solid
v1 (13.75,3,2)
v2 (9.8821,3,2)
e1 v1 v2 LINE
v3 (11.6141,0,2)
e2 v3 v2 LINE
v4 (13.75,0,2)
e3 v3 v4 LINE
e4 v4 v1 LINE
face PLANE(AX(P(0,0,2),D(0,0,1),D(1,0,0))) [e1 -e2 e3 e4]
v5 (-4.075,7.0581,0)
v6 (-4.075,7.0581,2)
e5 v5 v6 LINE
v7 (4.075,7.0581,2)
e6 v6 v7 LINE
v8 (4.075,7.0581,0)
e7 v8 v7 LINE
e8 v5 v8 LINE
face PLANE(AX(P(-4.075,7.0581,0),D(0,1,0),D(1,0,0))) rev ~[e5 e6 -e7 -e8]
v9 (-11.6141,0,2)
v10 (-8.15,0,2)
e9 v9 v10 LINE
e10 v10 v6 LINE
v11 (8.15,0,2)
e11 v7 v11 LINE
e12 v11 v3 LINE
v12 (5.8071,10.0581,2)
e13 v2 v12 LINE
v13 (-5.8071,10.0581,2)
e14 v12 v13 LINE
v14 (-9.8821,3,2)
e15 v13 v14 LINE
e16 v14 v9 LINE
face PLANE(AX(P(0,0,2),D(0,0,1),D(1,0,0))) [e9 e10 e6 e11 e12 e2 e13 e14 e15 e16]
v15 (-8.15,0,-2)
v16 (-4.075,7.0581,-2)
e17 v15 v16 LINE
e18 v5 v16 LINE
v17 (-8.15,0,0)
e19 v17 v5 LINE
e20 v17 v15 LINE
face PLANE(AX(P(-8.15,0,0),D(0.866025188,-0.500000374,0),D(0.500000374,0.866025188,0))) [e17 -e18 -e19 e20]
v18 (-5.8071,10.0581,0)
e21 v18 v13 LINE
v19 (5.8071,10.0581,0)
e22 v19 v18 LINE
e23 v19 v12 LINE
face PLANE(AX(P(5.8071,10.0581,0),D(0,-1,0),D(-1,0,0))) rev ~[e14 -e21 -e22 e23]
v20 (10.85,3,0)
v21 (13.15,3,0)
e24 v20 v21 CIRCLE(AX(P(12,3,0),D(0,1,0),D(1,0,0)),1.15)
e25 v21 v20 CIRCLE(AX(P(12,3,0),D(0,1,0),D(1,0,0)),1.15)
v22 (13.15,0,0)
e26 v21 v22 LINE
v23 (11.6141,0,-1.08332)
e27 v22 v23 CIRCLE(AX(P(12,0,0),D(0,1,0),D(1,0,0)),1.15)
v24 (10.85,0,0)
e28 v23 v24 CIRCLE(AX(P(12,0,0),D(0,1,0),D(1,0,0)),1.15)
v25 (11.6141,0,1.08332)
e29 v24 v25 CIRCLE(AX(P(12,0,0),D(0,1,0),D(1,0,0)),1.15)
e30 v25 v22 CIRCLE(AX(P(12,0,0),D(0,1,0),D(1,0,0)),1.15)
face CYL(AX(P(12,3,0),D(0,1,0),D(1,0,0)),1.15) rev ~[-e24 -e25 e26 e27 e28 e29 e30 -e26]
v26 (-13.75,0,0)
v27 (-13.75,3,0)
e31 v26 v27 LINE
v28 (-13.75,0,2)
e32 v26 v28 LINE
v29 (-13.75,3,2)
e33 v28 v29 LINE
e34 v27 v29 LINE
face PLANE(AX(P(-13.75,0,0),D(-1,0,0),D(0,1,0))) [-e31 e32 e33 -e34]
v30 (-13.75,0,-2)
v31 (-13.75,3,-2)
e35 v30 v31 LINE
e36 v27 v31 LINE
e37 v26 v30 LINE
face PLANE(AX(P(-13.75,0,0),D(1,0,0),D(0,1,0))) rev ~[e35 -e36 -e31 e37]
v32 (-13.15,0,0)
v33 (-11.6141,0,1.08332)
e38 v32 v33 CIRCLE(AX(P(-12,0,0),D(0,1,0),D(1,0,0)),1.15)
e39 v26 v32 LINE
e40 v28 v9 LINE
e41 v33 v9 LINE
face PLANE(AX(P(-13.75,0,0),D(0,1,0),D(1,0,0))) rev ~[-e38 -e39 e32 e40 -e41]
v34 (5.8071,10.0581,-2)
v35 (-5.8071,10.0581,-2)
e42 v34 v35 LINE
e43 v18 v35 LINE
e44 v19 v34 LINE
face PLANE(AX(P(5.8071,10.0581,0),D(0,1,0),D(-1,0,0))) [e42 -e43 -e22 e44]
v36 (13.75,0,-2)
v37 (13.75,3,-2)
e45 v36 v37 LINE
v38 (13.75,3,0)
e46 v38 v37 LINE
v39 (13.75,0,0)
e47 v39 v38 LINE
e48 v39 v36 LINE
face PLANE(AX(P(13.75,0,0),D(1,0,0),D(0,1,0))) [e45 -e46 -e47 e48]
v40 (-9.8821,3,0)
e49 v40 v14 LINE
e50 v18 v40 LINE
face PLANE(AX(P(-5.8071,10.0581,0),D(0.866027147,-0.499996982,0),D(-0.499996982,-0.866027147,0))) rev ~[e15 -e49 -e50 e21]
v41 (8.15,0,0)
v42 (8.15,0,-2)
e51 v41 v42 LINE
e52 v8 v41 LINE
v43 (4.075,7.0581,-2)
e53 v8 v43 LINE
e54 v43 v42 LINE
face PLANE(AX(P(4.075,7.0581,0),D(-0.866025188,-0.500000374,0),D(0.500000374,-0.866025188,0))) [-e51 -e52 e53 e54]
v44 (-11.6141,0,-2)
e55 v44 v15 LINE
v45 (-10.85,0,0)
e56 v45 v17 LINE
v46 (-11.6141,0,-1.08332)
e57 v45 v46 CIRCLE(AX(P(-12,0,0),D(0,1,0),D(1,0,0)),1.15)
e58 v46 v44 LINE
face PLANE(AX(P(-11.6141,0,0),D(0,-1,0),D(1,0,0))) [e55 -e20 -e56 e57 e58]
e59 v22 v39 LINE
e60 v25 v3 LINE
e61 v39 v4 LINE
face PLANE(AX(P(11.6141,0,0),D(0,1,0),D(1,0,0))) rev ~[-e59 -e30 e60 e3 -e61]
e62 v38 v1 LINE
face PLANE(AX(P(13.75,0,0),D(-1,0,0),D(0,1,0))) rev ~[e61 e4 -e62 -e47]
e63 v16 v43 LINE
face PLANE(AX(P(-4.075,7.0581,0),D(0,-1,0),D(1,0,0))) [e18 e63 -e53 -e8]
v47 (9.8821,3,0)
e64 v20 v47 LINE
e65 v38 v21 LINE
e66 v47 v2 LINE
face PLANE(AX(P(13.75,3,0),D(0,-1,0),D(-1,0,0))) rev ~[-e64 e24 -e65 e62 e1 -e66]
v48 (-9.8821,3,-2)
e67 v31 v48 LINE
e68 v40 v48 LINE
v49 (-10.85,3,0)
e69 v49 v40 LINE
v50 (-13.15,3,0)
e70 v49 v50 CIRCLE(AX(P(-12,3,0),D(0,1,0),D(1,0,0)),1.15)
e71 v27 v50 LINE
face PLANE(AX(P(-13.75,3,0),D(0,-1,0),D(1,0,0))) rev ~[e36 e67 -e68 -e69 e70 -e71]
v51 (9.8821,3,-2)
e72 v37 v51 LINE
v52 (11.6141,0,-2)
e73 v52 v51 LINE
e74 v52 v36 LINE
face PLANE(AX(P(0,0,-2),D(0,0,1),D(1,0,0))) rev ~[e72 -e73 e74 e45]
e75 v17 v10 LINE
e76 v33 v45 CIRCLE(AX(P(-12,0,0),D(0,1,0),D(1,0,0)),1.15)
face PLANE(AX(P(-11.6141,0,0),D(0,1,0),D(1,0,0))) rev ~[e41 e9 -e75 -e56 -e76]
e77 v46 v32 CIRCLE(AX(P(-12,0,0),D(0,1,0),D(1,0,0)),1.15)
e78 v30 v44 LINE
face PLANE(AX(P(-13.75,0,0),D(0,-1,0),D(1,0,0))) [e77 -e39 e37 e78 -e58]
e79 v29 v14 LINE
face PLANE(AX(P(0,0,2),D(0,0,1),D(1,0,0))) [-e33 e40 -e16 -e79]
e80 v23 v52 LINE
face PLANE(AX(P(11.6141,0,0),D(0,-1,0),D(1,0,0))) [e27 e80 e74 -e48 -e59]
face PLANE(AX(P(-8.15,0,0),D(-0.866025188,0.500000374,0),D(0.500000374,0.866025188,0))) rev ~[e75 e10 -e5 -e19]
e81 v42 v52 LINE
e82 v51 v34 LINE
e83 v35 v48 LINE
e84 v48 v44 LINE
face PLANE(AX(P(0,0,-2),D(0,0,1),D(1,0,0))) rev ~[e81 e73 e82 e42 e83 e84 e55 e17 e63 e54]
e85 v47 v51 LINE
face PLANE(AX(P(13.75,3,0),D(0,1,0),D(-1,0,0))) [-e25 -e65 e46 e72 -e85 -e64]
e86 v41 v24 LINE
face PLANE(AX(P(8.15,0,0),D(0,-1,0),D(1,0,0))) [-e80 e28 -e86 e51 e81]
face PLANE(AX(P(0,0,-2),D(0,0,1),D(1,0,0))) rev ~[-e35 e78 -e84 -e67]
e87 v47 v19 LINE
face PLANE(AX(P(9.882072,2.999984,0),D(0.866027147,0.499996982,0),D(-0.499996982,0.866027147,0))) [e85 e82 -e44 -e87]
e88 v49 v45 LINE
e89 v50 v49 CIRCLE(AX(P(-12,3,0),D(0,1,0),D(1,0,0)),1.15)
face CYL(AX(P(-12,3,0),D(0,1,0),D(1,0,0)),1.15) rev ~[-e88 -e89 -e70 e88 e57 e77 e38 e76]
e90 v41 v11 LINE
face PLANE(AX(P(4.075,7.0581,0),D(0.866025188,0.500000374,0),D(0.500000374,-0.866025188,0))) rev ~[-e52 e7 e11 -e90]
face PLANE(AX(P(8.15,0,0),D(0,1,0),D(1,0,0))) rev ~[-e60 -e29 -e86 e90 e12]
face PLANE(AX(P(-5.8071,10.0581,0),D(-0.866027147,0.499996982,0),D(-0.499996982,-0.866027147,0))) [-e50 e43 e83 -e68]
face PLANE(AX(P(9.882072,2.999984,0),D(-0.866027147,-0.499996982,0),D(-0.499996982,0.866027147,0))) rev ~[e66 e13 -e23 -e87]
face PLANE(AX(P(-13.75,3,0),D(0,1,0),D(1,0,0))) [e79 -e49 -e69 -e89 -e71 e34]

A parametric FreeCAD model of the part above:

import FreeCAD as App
import Part
import Sketcher
from FreeCAD import Vector
Q = App.Units.Quantity


def add_polygon(sketch, points):
    """Adds a closed chain of lines whose ends are joined by coincident constraints."""
    first, n = sketch.GeometryCount, len(points)
    for a, b in zip(points, points[1:] + points[:1]):
        sketch.addGeometry(Part.LineSegment(App.Vector(*a, 0), App.Vector(*b, 0)), False)
    for i in range(n):
        sketch.addConstraint(Sketcher.Constraint("Coincident", first + i, 2, first + (i + 1) % n, 1))

doc = App.newDocument("Part")
body = doc.addObject("PartDesign::Body", "Body")

sketch1 = body.newObject("Sketcher::SketchObject", "Sketch")
sketch1.AttachmentSupport = (doc.getObject("XY_Plane"), [""])
sketch1.MapMode = "FlatFace"
add_polygon(sketch1, [(-13.8, 3), (-13.8, 0), (-8.2, 0), (-4.1, 7.1), (4.1, 7.1), (8.2, 0), (13.8, 0), (13.8, 3), (9.9, 3), (5.8, 10.1), (-5.8, 10.1), (-9.9, 3)])
sketch1.addConstraint([
    Sketcher.Constraint("Vertical", 0),
    Sketcher.Constraint("Horizontal", 1),
    Sketcher.Constraint("Horizontal", 3),
    Sketcher.Constraint("Horizontal", 5),
    Sketcher.Constraint("Vertical", 6),
    Sketcher.Constraint("Horizontal", 7),
    Sketcher.Constraint("Horizontal", 9),
    Sketcher.Constraint("Horizontal", 11),
    Sketcher.Constraint("Symmetric", 1, 2, 4, 2, -1, 1),
    Sketcher.Constraint("Symmetric", 0, 2, 5, 2, -2),
    Sketcher.Constraint("Symmetric", 7, 2, 10, 2, -2),
    Sketcher.Constraint("Parallel", 4, 8),
    Sketcher.Constraint("Parallel", 2, 10),
    Sketcher.Constraint("Equal", 2, 4),
    Sketcher.Constraint("Equal", 4, 8),
    Sketcher.Constraint("DistanceY", 0, 2, 0, 1, 3.0),
    Sketcher.Constraint("DistanceX", 1, 2, 4, 2, 16.3),
    Sketcher.Constraint("DistanceX", 0, 2, 5, 2, 27.5),
    Sketcher.Constraint("Angle", 2, Q("60 deg")),
    Sketcher.Constraint("DistanceX", 3, 1, 3, 2, 8.15),
    Sketcher.Constraint("DistanceX", 7, 2, 7, 1, 3.868),
])
pad1 = body.newObject("PartDesign::Pad", "Pad")
pad1.Profile = sketch1
pad1.Length = 4
pad1.Midplane = True

sketch2 = body.newObject("Sketcher::SketchObject", "Sketch001")
sketch2.AttachmentSupport = (doc.getObject("XZ_Plane"), [""])
sketch2.MapMode = "FlatFace"
sketch2.AttachmentOffset = App.Placement(Vector(0, 0, -3), App.Rotation())
sketch2.addGeometry([
    Part.Circle(Vector(-12, 0, 0), Vector(0, 0, 1), 1.1),
    Part.Circle(Vector(12, 0, 0), Vector(0, 0, 1), 1.1),
], False)
sketch2.addConstraint([
    Sketcher.Constraint("Equal", 0, 1),
    Sketcher.Constraint("Symmetric", 0, 3, 1, 3, -1, 1),
    Sketcher.Constraint("PointOnObject", 0, 3, -1),
    Sketcher.Constraint("Diameter", 0, 2.3),
    Sketcher.Constraint("DistanceX", 0, 3, 1, 3, 24.0),
])
pocket1 = body.newObject("PartDesign::Pocket", "Pocket")
pocket1.Profile = sketch2
pocket1.Length = 4
pocket1.Reversed = True

doc.recompute()
